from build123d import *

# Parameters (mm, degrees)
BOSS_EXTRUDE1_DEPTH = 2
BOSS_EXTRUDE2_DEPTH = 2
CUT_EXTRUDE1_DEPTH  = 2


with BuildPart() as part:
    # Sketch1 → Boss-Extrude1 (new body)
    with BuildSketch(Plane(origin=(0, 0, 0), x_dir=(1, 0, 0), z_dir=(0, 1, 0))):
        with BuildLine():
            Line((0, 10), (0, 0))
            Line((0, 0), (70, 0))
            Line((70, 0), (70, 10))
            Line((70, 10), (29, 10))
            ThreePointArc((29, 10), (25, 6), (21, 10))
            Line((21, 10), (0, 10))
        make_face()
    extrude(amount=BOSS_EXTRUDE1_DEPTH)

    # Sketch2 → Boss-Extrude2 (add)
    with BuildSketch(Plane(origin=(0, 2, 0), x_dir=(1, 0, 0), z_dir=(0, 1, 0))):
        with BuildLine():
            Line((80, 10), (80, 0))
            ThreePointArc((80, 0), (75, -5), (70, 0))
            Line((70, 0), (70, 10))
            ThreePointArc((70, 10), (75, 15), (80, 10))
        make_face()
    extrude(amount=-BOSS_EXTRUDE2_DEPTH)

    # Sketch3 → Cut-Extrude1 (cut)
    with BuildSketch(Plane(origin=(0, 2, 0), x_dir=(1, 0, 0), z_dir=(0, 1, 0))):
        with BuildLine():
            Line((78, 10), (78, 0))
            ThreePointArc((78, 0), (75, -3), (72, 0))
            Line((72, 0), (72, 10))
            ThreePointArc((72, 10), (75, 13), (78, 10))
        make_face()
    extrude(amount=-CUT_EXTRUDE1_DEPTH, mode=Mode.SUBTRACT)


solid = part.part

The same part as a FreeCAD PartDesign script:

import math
import FreeCAD as App
import Part
import Sketcher
from FreeCAD import Vector
Q = App.Units.Quantity

doc = App.newDocument("Part")
body = doc.addObject("PartDesign::Body", "Body")

sketch1 = body.newObject("Sketcher::SketchObject", "Sketch")
sketch1.AttachmentSupport = (doc.getObject("XZ_Plane"), [""])
sketch1.MapMode = "FlatFace"
sketch1.addGeometry([
    Part.LineSegment(Vector(0, -10, 0), Vector(0, 0, 0)),
    Part.LineSegment(Vector(0, 0, 0), Vector(70, 0, 0)),
    Part.LineSegment(Vector(70, 0, 0), Vector(70, -10, 0)),
    Part.LineSegment(Vector(70, -10, 0), Vector(29, -10, 0)),
    Part.ArcOfCircle(Part.Circle(Vector(25, -10, 0), Vector(0, 0, 1), 4), math.radians(0), math.radians(180)),
    Part.LineSegment(Vector(21, -10, 0), Vector(0, -10, 0)),
], False)
sketch1.addConstraint([
    Sketcher.Constraint("Coincident", 0, 2, 1, 1),
    Sketcher.Constraint("Coincident", 1, 2, 2, 1),
    Sketcher.Constraint("Coincident", 2, 2, 3, 1),
    Sketcher.Constraint("Coincident", 3, 2, 4, 1),
    Sketcher.Constraint("Coincident", 4, 2, 5, 1),
    Sketcher.Constraint("Coincident", 5, 2, 0, 1),
    Sketcher.Constraint("Vertical", 0),
    Sketcher.Constraint("Horizontal", 1),
    Sketcher.Constraint("Vertical", 2),
    Sketcher.Constraint("Horizontal", 3),
    Sketcher.Constraint("Horizontal", 5),
    Sketcher.Constraint("Coincident", 0, 2, -1, 1),
    Sketcher.Constraint("Horizontal", 4, 3, 2, 2),
    Sketcher.Constraint("Horizontal", 3, 2, 4, 2),
    Sketcher.Constraint("Radius", 4, Q("4 mm")),
    Sketcher.Constraint("DistanceX", 1, 1, 1, 2, Q("70 mm")),
    Sketcher.Constraint("DistanceX", 3, 2, 3, 1, Q("41 mm")),
    Sketcher.Constraint("DistanceY", 0, 1, 0, 2, Q("10 mm")),
])
pad1 = body.newObject("PartDesign::Pad", "Pad")
pad1.Profile = sketch1
pad1.Length = 2
pad1.Reversed = True

sketch2 = body.newObject("Sketcher::SketchObject", "Sketch001")
sketch2.AttachmentSupport = (doc.getObject("XZ_Plane"), [""])
sketch2.MapMode = "FlatFace"
sketch2.AttachmentOffset = App.Placement(Vector(0, 0, -2), App.Rotation())
sketch2.addGeometry([
    Part.LineSegment(Vector(80, 0, 0), Vector(80, -10, 0)),
    Part.ArcOfCircle(Part.Circle(Vector(75, -10, 0), Vector(0, 0, 1), 5), math.radians(180), math.radians(360)),
    Part.LineSegment(Vector(70, -10, 0), Vector(70, 0, 0)),
    Part.ArcOfCircle(Part.Circle(Vector(75, 0, 0), Vector(0, 0, 1), 5), math.radians(0), math.radians(180)),
], False)
sketch2.addConstraint([
    Sketcher.Constraint("Tangent", 0, 2, 1, 2),
    Sketcher.Constraint("Tangent", 1, 1, 2, 1),
    Sketcher.Constraint("Tangent", 2, 2, 3, 2),
    Sketcher.Constraint("Tangent", 3, 1, 0, 1),
    Sketcher.Constraint("Vertical", 0),
    Sketcher.Constraint("Vertical", 2),
    Sketcher.Constraint("PointOnObject", 3, 3, -1),
    Sketcher.Constraint("Radius", 1, Q("5 mm")),
    Sketcher.Constraint("DistanceY", 0, 2, 0, 1, Q("10 mm")),
    Sketcher.Constraint("DistanceX", -1, 1, 1, 3, Q("75 mm")),
])
pad2 = body.newObject("PartDesign::Pad", "Pad001")
pad2.Profile = sketch2
pad2.Length = 2

sketch3 = body.newObject("Sketcher::SketchObject", "Sketch002")
sketch3.AttachmentSupport = (doc.getObject("XZ_Plane"), [""])
sketch3.MapMode = "FlatFace"
sketch3.AttachmentOffset = App.Placement(Vector(0, 0, -2), App.Rotation())
sketch3.addGeometry([
    Part.LineSegment(Vector(78, 0, 0), Vector(78, -10, 0)),
    Part.ArcOfCircle(Part.Circle(Vector(75, -10, 0), Vector(0, 0, 1), 3), math.radians(180), math.radians(360)),
    Part.LineSegment(Vector(72, -10, 0), Vector(72, 0, 0)),
    Part.ArcOfCircle(Part.Circle(Vector(75, 0, 0), Vector(0, 0, 1), 3), math.radians(0), math.radians(180)),
], False)
sketch3.addConstraint([
    Sketcher.Constraint("Tangent", 0, 2, 1, 2),
    Sketcher.Constraint("Tangent", 1, 1, 2, 1),
    Sketcher.Constraint("Tangent", 2, 2, 3, 2),
    Sketcher.Constraint("Tangent", 3, 1, 0, 1),
    Sketcher.Constraint("Vertical", 0),
    Sketcher.Constraint("Vertical", 2),
    Sketcher.Constraint("PointOnObject", 3, 3, -1),
    Sketcher.Constraint("Radius", 1, Q("3 mm")),
    Sketcher.Constraint("DistanceY", 0, 2, 0, 1, Q("10 mm")),
    Sketcher.Constraint("DistanceX", -1, 1, 1, 3, Q("75 mm")),
])
pocket1 = body.newObject("PartDesign::Pocket", "Pocket")
pocket1.Profile = sketch3
pocket1.Length = 2
pocket1.Reversed = True

doc.recompute()
